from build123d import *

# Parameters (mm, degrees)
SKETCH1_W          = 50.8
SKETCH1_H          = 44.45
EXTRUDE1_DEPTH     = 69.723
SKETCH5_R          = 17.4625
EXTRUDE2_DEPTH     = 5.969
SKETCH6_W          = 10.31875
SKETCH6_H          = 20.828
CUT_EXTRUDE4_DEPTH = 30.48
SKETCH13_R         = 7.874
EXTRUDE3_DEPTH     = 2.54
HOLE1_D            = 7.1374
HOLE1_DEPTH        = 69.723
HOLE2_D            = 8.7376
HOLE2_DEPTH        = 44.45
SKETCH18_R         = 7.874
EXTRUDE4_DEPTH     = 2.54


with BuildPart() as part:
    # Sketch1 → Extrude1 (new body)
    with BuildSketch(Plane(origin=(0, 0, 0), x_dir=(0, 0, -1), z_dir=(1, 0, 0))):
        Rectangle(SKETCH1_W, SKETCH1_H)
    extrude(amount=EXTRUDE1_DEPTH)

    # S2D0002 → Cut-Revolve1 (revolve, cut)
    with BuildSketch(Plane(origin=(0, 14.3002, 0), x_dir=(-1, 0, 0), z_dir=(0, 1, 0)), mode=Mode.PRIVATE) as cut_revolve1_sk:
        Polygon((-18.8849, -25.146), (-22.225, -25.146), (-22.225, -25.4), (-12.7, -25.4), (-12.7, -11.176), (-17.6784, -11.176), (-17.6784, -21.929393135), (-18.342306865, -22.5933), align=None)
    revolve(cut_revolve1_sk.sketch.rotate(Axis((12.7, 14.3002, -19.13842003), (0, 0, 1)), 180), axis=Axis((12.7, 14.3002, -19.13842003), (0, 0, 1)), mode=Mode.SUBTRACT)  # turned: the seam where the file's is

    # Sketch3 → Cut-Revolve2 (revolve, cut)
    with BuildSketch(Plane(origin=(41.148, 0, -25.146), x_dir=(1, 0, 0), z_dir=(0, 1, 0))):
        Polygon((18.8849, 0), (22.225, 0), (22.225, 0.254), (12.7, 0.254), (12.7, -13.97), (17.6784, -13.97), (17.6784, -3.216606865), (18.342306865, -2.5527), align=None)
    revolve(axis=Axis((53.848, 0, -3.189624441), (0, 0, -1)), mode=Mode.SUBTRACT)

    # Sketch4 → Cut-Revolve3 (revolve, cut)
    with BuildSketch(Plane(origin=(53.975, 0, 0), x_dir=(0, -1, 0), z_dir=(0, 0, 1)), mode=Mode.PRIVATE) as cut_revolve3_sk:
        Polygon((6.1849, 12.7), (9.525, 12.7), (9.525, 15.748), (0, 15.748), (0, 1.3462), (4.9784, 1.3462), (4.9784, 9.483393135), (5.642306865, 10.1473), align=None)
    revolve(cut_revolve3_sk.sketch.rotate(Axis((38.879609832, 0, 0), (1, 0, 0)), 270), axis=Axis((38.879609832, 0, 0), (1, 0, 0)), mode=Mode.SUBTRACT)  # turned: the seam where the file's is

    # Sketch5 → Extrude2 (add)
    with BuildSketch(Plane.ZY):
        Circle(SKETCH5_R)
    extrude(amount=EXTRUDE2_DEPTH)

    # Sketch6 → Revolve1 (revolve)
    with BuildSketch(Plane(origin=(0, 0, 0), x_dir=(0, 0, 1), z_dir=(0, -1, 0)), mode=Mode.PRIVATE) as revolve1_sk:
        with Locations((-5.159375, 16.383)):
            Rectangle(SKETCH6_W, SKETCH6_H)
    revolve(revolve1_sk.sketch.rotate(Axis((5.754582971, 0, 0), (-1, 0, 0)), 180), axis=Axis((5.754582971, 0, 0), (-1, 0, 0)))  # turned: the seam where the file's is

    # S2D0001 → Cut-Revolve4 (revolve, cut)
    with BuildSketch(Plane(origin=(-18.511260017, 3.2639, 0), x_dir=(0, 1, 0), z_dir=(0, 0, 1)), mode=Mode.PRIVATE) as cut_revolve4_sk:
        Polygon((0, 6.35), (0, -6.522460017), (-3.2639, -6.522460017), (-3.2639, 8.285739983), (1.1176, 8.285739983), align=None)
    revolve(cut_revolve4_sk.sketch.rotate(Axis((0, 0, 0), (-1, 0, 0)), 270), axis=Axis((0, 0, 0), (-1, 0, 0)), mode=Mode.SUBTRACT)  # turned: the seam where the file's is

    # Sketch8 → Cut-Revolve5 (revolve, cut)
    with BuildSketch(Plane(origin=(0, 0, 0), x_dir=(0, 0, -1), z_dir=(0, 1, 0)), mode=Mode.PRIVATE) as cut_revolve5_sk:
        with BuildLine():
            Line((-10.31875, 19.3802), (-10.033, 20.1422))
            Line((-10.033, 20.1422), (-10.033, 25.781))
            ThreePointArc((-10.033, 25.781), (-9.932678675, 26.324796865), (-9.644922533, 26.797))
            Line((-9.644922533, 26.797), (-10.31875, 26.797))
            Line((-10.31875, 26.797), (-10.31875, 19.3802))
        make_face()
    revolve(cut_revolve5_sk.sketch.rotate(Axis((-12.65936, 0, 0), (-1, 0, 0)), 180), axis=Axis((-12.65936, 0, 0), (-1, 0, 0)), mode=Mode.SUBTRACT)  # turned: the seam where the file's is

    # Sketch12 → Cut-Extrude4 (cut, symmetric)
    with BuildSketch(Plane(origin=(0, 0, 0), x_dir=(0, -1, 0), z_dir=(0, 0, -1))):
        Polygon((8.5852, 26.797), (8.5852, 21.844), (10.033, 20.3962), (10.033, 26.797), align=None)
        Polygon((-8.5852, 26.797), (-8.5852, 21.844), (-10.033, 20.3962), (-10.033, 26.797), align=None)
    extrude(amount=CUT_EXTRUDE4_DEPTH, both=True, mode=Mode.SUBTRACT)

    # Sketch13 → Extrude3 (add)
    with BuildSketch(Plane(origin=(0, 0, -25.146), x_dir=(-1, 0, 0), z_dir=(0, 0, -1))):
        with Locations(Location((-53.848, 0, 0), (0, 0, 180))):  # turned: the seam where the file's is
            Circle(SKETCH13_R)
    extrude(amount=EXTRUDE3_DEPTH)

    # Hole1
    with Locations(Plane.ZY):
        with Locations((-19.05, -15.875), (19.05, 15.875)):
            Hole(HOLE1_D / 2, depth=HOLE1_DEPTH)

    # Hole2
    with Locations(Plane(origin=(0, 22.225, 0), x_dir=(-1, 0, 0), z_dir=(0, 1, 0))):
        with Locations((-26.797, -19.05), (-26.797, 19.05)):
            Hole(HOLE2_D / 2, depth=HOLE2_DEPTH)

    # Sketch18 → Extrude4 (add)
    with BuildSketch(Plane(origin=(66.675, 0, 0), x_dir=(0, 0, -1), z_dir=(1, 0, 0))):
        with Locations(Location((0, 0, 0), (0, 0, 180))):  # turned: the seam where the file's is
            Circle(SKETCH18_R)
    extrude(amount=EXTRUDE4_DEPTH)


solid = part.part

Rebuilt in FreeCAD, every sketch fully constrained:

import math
import FreeCAD as App
import Part
import Sketcher

V = App.Vector
Q = App.Units.Quantity


def add_polygon(sketch, points):
    """Adds a closed chain of lines whose ends are joined by coincident constraints."""
    first, n = sketch.GeometryCount, len(points)
    for a, b in zip(points, points[1:] + points[:1]):
        sketch.addGeometry(Part.LineSegment(App.Vector(*a, 0), App.Vector(*b, 0)), False)
    for i in range(n):
        sketch.addConstraint(Sketcher.Constraint("Coincident", first + i, 2, first + (i + 1) % n, 1))

doc = App.newDocument("Part")
body = doc.addObject("PartDesign::Body", "Body")

# Sketch on YZ plane
sketch1 = doc.addObject("Sketcher::SketchObject", "Sketch")
body.addObject(sketch1)
sketch1.AttachmentSupport = (doc.YZ_Plane, [""])
sketch1.MapMode = "FlatFace"
add_polygon(sketch1, [(22, 25), (-22, 25), (-22, -25), (22, -25)])  # lines 0-3
sketch1.addConstraint([
    Sketcher.Constraint("Horizontal", 0),
    Sketcher.Constraint("Vertical", 1),
    Sketcher.Constraint("Horizontal", 2),
    Sketcher.Constraint("Vertical", 3),
    Sketcher.Constraint("Symmetric", 0, 2, 2, 2, -1, 1),
    Sketcher.Constraint("DistanceY", 1, 2, 1, 1, Q("2 in")),
    Sketcher.Constraint("DistanceX", 0, 2, 0, 1, Q("1.75 in")),
])
pad1 = doc.addObject("PartDesign::Pad", "Pad")
body.addObject(pad1)
pad1.Profile = sketch1
pad1.Length = Q("2.745 in")

# Sketch on XZ plane
sketch2 = doc.addObject("Sketcher::SketchObject", "Sketch001")
body.addObject(sketch2)
sketch2.AttachmentSupport = (doc.XZ_Plane, [""])
sketch2.MapMode = "FlatFace"
sketch2.AttachmentOffset = App.Placement(V(0, 0, -0.563 * 25.4), App.Rotation())
add_polygon(sketch2, [(18.88, -25.15), (22.23, -25.15), (22.23, -25.4), (12.7, -25.4), (12.7, -11.18), (17.68, -11.18), (17.68, -21.93), (18.34, -22.59)])  # lines 0-7
sketch2.addGeometry(Part.LineSegment(V(12.7, -25.4, 0), V(12.7, -11.18, 0)), True)  # axis
sketch2.addConstraint([
    Sketcher.Constraint("Horizontal", 0),
    Sketcher.Constraint("Vertical", 1),
    Sketcher.Constraint("Horizontal", 2),
    Sketcher.Constraint("Vertical", 3),
    Sketcher.Constraint("Horizontal", 4),
    Sketcher.Constraint("Vertical", 5),
    Sketcher.Constraint("Vertical", 8),
    Sketcher.Constraint("Coincident", 8, 1, 2, 2),
    Sketcher.Constraint("Horizontal", 4, 2, 8, 2),
    Sketcher.Constraint("DistanceY", 1, 2, -1, 1, Q("1 in")),
    Sketcher.Constraint("Angle", 6, Q("-45 deg")),
    Sketcher.Constraint("Angle", 7, Q("-78 deg")),
    Sketcher.Constraint("DistanceY", 1, 2, 1, 1, Q("0.01 in")),
    Sketcher.Constraint("DistanceY", 3, 1, 3, 2, Q("0.56 in")),
    Sketcher.Constraint("DistanceX", -1, 1, 2, 2, Q("0.5 in")),
    Sketcher.Constraint("DistanceX", 2, 2, 2, 1, Q("0.375 in")),
    Sketcher.Constraint("DistanceX", 4, 1, 4, 2, Q("0.196 in")),
    Sketcher.Constraint("DistanceX", 0, 1, 0, 2, Q("0.1315 in")),
    Sketcher.Constraint("DistanceY", 6, 2, -1, 1, Q("0.8895 in")),
])
groove = doc.addObject("PartDesign::Groove", "Groove")
body.addObject(groove)
groove.Profile = sketch2
groove.ReferenceAxis = (sketch2, ["Axis0"])
groove.Angle = 360

# Sketch on XZ plane
sketch3 = doc.addObject("Sketcher::SketchObject", "Sketch002")
body.addObject(sketch3)
sketch3.AttachmentSupport = (doc.XZ_Plane, [""])
sketch3.MapMode = "FlatFace"
add_polygon(sketch3, [(60.03, -25.15), (63.37, -25.15), (63.37, -25.4), (53.85, -25.4), (53.85, -11.18), (58.83, -11.18), (58.83, -21.93), (59.49, -22.59)])  # lines 0-7
sketch3.addGeometry(Part.LineSegment(V(53.85, -11.18, 0), V(53.85, -25.4, 0)), True)  # axis
sketch3.addConstraint([
    Sketcher.Constraint("Horizontal", 0),
    Sketcher.Constraint("Vertical", 1),
    Sketcher.Constraint("Horizontal", 2),
    Sketcher.Constraint("Vertical", 3),
    Sketcher.Constraint("Horizontal", 4),
    Sketcher.Constraint("Vertical", 5),
    Sketcher.Constraint("Vertical", 8),
    Sketcher.Constraint("Coincident", 8, 1, 3, 2),
    Sketcher.Constraint("Horizontal", 1, 2, 8, 2),
    Sketcher.Constraint("DistanceY", 1, 2, -1, 1, Q("1 in")),
    Sketcher.Constraint("Angle", 6, Q("-45 deg")),
    Sketcher.Constraint("Angle", 7, Q("-78 deg")),
    Sketcher.Constraint("DistanceY", 1, 2, 1, 1, Q("0.01 in")),
    Sketcher.Constraint("DistanceY", 3, 1, 3, 2, Q("0.56 in")),
    Sketcher.Constraint("DistanceX", 2, 2, 2, 1, Q("0.375 in")),
    Sketcher.Constraint("DistanceX", 4, 1, 4, 2, Q("0.196 in")),
    Sketcher.Constraint("DistanceX", -1, 1, 2, 2, Q("2.12 in")),
    Sketcher.Constraint("DistanceX", 0, 1, 0, 2, Q("0.1315 in")),
    Sketcher.Constraint("DistanceY", 6, 2, -1, 1, Q("0.8895 in")),
])
groove2 = doc.addObject("PartDesign::Groove", "Groove001")
body.addObject(groove2)
groove2.Profile = sketch3
groove2.ReferenceAxis = (sketch3, ["Axis0"])
groove2.Angle = 360

# Sketch on XY plane
sketch4 = doc.addObject("Sketcher::SketchObject", "Sketch003")
body.addObject(sketch4)
sketch4.AttachmentSupport = (doc.XY_Plane, [""])
sketch4.MapMode = "FlatFace"
add_polygon(sketch4, [(66.7, -6.2), (66.7, -9.5), (69.7, -9.5), (69.7, 0), (55.3, 0), (55.3, -5), (63.5, -5), (64.1, -5.6)])  # lines 0-7
sketch4.addConstraint([
    Sketcher.Constraint("Vertical", 0),
    Sketcher.Constraint("Horizontal", 1),
    Sketcher.Constraint("Vertical", 2),
    Sketcher.Constraint("Horizontal", 3),
    Sketcher.Constraint("Vertical", 4),
    Sketcher.Constraint("Horizontal", 5),
    Sketcher.Constraint("PointOnObject", 2, 2, -1),
    Sketcher.Constraint("Angle", 6, Q("-45 deg")),
    Sketcher.Constraint("Angle", 7, Q("-12 deg")),
    Sketcher.Constraint("DistanceX", 1, 1, 1, 2, Q("0.12 in")),
    Sketcher.Constraint("DistanceX", 3, 2, 3, 1, Q("0.567 in")),
    Sketcher.Constraint("DistanceY", 2, 1, 2, 2, Q("0.375 in")),
    Sketcher.Constraint("DistanceY", 4, 2, 4, 1, Q("0.196 in")),
    Sketcher.Constraint("DistanceY", 0, 2, 0, 1, Q("0.1315 in")),
    Sketcher.Constraint("DistanceX", -1, 1, 0, 2, Q("2.625 in")),
    Sketcher.Constraint("DistanceX", -1, 1, 6, 2, Q("2.5245 in")),
])
groove3 = doc.addObject("PartDesign::Groove", "Groove002")
body.addObject(groove3)
groove3.Profile = sketch4
groove3.ReferenceAxis = (sketch4, ["H_Axis"])
groove3.Angle = 360

# Sketch on YZ plane
sketch5 = doc.addObject("Sketcher::SketchObject", "Sketch004")
body.addObject(sketch5)
sketch5.AttachmentSupport = (doc.YZ_Plane, [""])
sketch5.MapMode = "FlatFace"
sketch5.addGeometry(Part.Circle(V(0, 0, 0), V(0, 0, 1), 17), False)
sketch5.addConstraint([
    Sketcher.Constraint("Coincident", 0, 3, -1, 1),
    Sketcher.Constraint("Diameter", 0, Q("1.375 in")),
])
pad2 = doc.addObject("PartDesign::Pad", "Pad001")
body.addObject(pad2)
pad2.Profile = sketch5
pad2.Length = Q("0.235 in")
pad2.Reversed = True

# Sketch on XZ plane
sketch6 = doc.addObject("Sketcher::SketchObject", "Sketch005")
body.addObject(sketch6)
sketch6.AttachmentSupport = (doc.XZ_Plane, [""])
sketch6.MapMode = "FlatFace"
add_polygon(sketch6, [(-27, -10), (-6, -10), (-6, 0), (-27, 0)])  # lines 0-3
sketch6.addConstraint([
    Sketcher.Constraint("Horizontal", 0),
    Sketcher.Constraint("Vertical", 1),
    Sketcher.Constraint("Horizontal", 2),
    Sketcher.Constraint("Vertical", 3),
    Sketcher.Constraint("PointOnObject", 1, 2, -1),
    Sketcher.Constraint("DistanceX", 0, 1, 0, 2, Q("0.82 in")),
    Sketcher.Constraint("DistanceY", 1, 1, 1, 2, Q("0.40625 in")),
    Sketcher.Constraint("DistanceX", 0, 2, -1, 1, Q("0.235 in")),
])
revolution = doc.addObject("PartDesign::Revolution", "Revolution")
body.addObject(revolution)
revolution.Profile = sketch6
revolution.ReferenceAxis = (sketch6, ["H_Axis"])
revolution.Angle = 360

# Sketch on XY plane
sketch7 = doc.addObject("Sketcher::SketchObject", "Sketch006")
body.addObject(sketch7)
sketch7.AttachmentSupport = (doc.XY_Plane, [""])
sketch7.MapMode = "FlatFace"
add_polygon(sketch7, [(-12, 3.3), (-24.9, 3.3), (-26.8, 4.4), (-26.8, 0), (-12, 0)])  # lines 0-4
sketch7.addConstraint([
    Sketcher.Constraint("Horizontal", 0),
    Sketcher.Constraint("Vertical", 2),
    Sketcher.Constraint("Horizontal", 3),
    Sketcher.Constraint("Vertical", 4),
    Sketcher.Constraint("PointOnObject", 2, 2, -1),
    Sketcher.Constraint("Angle", 1, Q("150 deg")),
    Sketcher.Constraint("DistanceX", 3, 1, 3, 2, Q("0.583 in")),
    Sketcher.Constraint("Distance", 1, Q("0.088 in")),
    Sketcher.Constraint("DistanceY", 2, 2, 2, 1, Q("0.1725 in")),
    Sketcher.Constraint("DistanceX", 1, 2, -1, 1, Q("1.055 in")),
])
groove4 = doc.addObject("PartDesign::Groove", "Groove003")
body.addObject(groove4)
groove4.Profile = sketch7
groove4.ReferenceAxis = (sketch7, ["H_Axis"])
groove4.Angle = 360

# Sketch on XZ plane
sketch8 = doc.addObject("Sketcher::SketchObject", "Sketch007")
body.addObject(sketch8)
sketch8.AttachmentSupport = (doc.XZ_Plane, [""])
sketch8.MapMode = "FlatFace"
sketch8.addGeometry([
    Part.LineSegment(V(-19.4, 10.3, 0), V(-20.1, 10, 0)),  # 0
    Part.LineSegment(V(-20.1, 10, 0), V(-25.8, 10, 0)),  # 1
    Part.ArcOfCircle(Part.Circle(V(-25.8, 8.5, 0), V(0, 0, 1), 1.5), math.radians(90), math.radians(132)),  # 2
    Part.LineSegment(V(-26.8, 9.6, 0), V(-26.8, 10.3, 0)),  # 3
    Part.LineSegment(V(-26.8, 10.3, 0), V(-19.4, 10.3, 0)),  # 4
], False)
sketch8.addConstraint([
    Sketcher.Constraint("Coincident", 0, 2, 1, 1),
    Sketcher.Constraint("Tangent", 1, 2, 2, 1),
    Sketcher.Constraint("Coincident", 2, 2, 3, 1),
    Sketcher.Constraint("Coincident", 3, 2, 4, 1),
    Sketcher.Constraint("Coincident", 4, 2, 0, 1),
    Sketcher.Constraint("Horizontal", 1),
    Sketcher.Constraint("Vertical", 3),
    Sketcher.Constraint("Horizontal", 4),
    Sketcher.Constraint("Radius", 2, Q("0.06 in")),
    Sketcher.Constraint("DistanceX", 1, 2, 1, 1, Q("0.222 in")),
    Sketcher.Constraint("DistanceX", 4, 1, 4, 2, Q("0.292 in")),
    Sketcher.Constraint("DistanceX", 2, 2, 1, 2, Q("0.04 in")),
    Sketcher.Constraint("DistanceX", 2, 3, -1, 1, Q("1.015 in")),
    Sketcher.Constraint("DistanceY", -1, 1, 2, 3, Q("0.335 in")),
    Sketcher.Constraint("DistanceY", -1, 1, 3, 2, Q("0.40625 in")),
])
groove5 = doc.addObject("PartDesign::Groove", "Groove004")
body.addObject(groove5)
groove5.Profile = sketch8
groove5.ReferenceAxis = (sketch8, ["H_Axis"])
groove5.Angle = 360

# Sketch on XY plane
sketch9 = doc.addObject("Sketcher::SketchObject", "Sketch008")
body.addObject(sketch9)
sketch9.AttachmentSupport = (doc.XY_Plane, [""])
sketch9.MapMode = "FlatFace"
add_polygon(sketch9, [(-26.8, -8.6), (-21.8, -8.6), (-20.4, -10), (-26.8, -10)])  # lines 0-3
add_polygon(sketch9, [(-21.8, 8.6), (-26.8, 8.6), (-26.8, 10), (-20.4, 10)])  # lines 4-7
sketch9.addConstraint([
    Sketcher.Constraint("Horizontal", 0),
    Sketcher.Constraint("Horizontal", 2),
    Sketcher.Constraint("Vertical", 3),
    Sketcher.Constraint("Horizontal", 4),
    Sketcher.Constraint("Vertical", 5),
    Sketcher.Constraint("Horizontal", 6),
    Sketcher.Constraint("Symmetric", 3, 2, 4, 2, -1),
    Sketcher.Constraint("Symmetric", 1, 2, 6, 2, -1),
    Sketcher.Constraint("Perpendicular", 1, 7),
    Sketcher.Constraint("Vertical", 0, 2, 7, 2),
    Sketcher.Constraint("DistanceX", 0, 1, 0, 2, Q("0.195 in")),
    Sketcher.Constraint("DistanceX", 2, 2, 2, 1, Q("0.252 in")),
    Sketcher.Constraint("DistanceX", 0, 2, -1, 1, Q("0.86 in")),
    Sketcher.Constraint("DistanceY", 2, 2, 5, 2, Q("0.79 in")),
])
pocket1 = doc.addObject("PartDesign::Pocket", "Pocket")
body.addObject(pocket1)
pocket1.Profile = sketch9
pocket1.Length = Q("2.4 in")
pocket1.Midplane = True

# Sketch on XY plane
sketch10 = doc.addObject("Sketcher::SketchObject", "Sketch009")
body.addObject(sketch10)
sketch10.AttachmentSupport = (doc.XY_Plane, [""])
sketch10.MapMode = "FlatFace"
sketch10.AttachmentOffset = App.Placement(V(0, 0, -0.99 * 25.4), App.Rotation())
sketch10.addGeometry(Part.Circle(V(54, 0, 0), V(0, 0, 1), 8), False)
sketch10.addConstraint([
    Sketcher.Constraint("PointOnObject", 0, 3, -1),
    Sketcher.Constraint("Diameter", 0, Q("0.62 in")),
    Sketcher.Constraint("DistanceX", -1, 1, 0, 3, Q("2.12 in")),
])
pad3 = doc.addObject("PartDesign::Pad", "Pad002")
body.addObject(pad3)
pad3.Profile = sketch10
pad3.Length = Q("0.1 in")
pad3.Reversed = True

# Sketch on YZ plane
sketch11 = doc.addObject("Sketcher::SketchObject", "Sketch010")
body.addObject(sketch11)
sketch11.AttachmentSupport = (doc.YZ_Plane, [""])
sketch11.MapMode = "FlatFace"
sketch11.addGeometry([
    Part.Circle(V(-15.9, -19.1, 0), V(0, 0, 1), 3.6),
    Part.Circle(V(15.9, 19.1, 0), V(0, 0, 1), 3.6),
], False)
sketch11.addConstraint([
    Sketcher.Constraint("Equal", 0, 1),
    Sketcher.Constraint("Symmetric", 0, 3, 1, 3, -1, 1),
    Sketcher.Constraint("Diameter", 0, Q("0.281 in")),
    Sketcher.Constraint("DistanceY", 0, 3, 1, 3, Q("1.5 in")),
    Sketcher.Constraint("DistanceX", 0, 3, 1, 3, Q("1.25 in")),
])
doc.recompute()
hole = doc.addObject("PartDesign::Hole", "Hole")
body.addObject(hole)
hole.Profile = sketch11
hole.ThreadType = "None"
hole.Diameter = Q("0.281 in")
hole.DepthType = "Dimension"
hole.Depth = Q("2.745 in")
hole.DrillPoint = "Flat"
hole.Reversed = True

# Sketch on XZ plane
sketch12 = doc.addObject("Sketcher::SketchObject", "Sketch011")
body.addObject(sketch12)
sketch12.AttachmentSupport = (doc.XZ_Plane, [""])
sketch12.MapMode = "FlatFace"
sketch12.AttachmentOffset = App.Placement(V(0, 0, -0.875 * 25.4), App.Rotation())
sketch12.addGeometry([
    Part.Circle(V(26.8, -19.1, 0), V(0, 0, 1), 4.4),
    Part.Circle(V(26.8, 19.1, 0), V(0, 0, 1), 4.4),
], False)
sketch12.addConstraint([
    Sketcher.Constraint("Equal", 0, 1),
    Sketcher.Constraint("Symmetric", 0, 3, 1, 3, -1),
    Sketcher.Constraint("Diameter", 0, Q("0.344 in")),
    Sketcher.Constraint("DistanceY", 0, 3, 1, 3, Q("1.5 in")),
    Sketcher.Constraint("DistanceX", -1, 1, 0, 3, Q("1.055 in")),
])
doc.recompute()
hole2 = doc.addObject("PartDesign::Hole", "Hole001")
body.addObject(hole2)
hole2.Profile = sketch12
hole2.ThreadType = "None"
hole2.Diameter = Q("0.344 in")
hole2.DepthType = "Dimension"
hole2.Depth = Q("1.75 in")
hole2.DrillPoint = "Flat"
hole2.Reversed = True

# Sketch on YZ plane
sketch13 = doc.addObject("Sketcher::SketchObject", "Sketch012")
body.addObject(sketch13)
sketch13.AttachmentSupport = (doc.YZ_Plane, [""])
sketch13.MapMode = "FlatFace"
sketch13.AttachmentOffset = App.Placement(V(0, 0, 2.625 * 25.4), App.Rotation())
sketch13.addGeometry(Part.Circle(V(0, 0, 0), V(0, 0, 1), 8), False)
sketch13.addConstraint([
    Sketcher.Constraint("Coincident", 0, 3, -1, 1),
    Sketcher.Constraint("Diameter", 0, Q("0.62 in")),
])
pad4 = doc.addObject("PartDesign::Pad", "Pad003")
body.addObject(pad4)
pad4.Profile = sketch13
pad4.Length = Q("0.1 in")

doc.recompute()
